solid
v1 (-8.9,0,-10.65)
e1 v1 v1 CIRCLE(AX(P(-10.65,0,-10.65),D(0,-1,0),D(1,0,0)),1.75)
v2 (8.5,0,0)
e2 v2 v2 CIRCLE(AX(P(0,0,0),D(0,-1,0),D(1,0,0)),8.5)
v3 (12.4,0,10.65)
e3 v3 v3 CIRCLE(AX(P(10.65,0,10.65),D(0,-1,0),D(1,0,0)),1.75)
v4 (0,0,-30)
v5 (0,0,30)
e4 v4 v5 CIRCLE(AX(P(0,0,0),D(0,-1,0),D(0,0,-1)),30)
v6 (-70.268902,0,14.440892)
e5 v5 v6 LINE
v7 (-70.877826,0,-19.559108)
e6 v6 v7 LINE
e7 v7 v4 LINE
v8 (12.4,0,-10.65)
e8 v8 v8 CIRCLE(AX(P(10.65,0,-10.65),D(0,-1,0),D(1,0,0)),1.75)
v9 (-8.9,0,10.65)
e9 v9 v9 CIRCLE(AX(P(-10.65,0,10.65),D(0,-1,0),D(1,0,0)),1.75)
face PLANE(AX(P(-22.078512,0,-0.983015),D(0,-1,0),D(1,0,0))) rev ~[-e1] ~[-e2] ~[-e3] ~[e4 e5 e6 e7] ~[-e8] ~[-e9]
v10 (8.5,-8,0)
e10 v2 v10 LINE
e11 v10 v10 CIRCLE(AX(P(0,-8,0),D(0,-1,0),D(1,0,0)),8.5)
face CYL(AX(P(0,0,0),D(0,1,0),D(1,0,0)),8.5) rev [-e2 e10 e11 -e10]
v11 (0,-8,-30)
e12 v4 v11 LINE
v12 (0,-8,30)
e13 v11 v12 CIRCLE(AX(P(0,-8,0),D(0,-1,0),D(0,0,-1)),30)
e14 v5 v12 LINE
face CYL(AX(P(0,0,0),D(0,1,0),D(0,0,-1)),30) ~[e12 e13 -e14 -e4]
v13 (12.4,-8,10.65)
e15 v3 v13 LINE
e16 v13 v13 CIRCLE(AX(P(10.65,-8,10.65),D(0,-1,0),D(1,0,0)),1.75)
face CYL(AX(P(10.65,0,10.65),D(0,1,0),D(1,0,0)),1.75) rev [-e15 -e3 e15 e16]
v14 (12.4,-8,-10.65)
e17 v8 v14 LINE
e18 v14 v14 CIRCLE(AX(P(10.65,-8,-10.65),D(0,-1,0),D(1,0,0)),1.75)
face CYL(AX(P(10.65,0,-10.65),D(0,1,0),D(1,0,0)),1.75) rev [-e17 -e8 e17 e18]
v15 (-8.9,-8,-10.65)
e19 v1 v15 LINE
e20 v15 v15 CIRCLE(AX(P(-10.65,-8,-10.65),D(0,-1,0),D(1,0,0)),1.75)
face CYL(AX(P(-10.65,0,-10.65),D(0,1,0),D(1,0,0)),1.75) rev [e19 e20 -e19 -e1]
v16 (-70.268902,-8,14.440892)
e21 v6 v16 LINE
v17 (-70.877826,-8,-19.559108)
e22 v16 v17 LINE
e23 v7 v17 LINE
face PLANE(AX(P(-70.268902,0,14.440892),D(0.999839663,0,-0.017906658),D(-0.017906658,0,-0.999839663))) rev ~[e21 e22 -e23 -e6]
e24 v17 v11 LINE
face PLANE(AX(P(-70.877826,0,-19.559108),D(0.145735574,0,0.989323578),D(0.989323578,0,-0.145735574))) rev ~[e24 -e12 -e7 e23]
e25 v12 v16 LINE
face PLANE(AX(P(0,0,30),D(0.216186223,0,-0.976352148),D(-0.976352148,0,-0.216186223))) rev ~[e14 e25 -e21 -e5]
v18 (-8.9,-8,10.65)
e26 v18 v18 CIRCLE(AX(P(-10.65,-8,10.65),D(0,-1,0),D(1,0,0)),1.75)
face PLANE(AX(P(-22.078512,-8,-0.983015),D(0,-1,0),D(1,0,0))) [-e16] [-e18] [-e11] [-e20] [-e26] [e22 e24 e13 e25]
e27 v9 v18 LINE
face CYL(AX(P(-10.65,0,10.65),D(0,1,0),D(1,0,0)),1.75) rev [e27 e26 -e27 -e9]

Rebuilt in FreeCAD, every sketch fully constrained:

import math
import FreeCAD as App
import Part
import Sketcher
from FreeCAD import Vector

doc = App.newDocument("Part")
body = doc.addObject("PartDesign::Body", "Body")

# Sketch on XZ plane
sketch1 = doc.addObject("Sketcher::SketchObject", "Sketch")
body.addObject(sketch1)
sketch1.AttachmentSupport = (doc.XZ_Plane, [""])
sketch1.MapMode = "FlatFace"
sketch1.addGeometry([
    Part.LineSegment(Vector(-70.877826, -19.559108, 0), Vector(0, -30, 0)),  # 0
    Part.ArcOfCircle(Part.Circle(Vector(0, 0, 0), Vector(0, 0, 1), 30), math.radians(-90), math.radians(90)),  # 1
    Part.LineSegment(Vector(0, 30, 0), Vector(-70.268902, 14.440892, 0)),  # 2
    Part.LineSegment(Vector(-70.268902, 14.440892, 0), Vector(-70.877826, -19.559108, 0)),  # 3
    Part.Circle(Vector(-10.65, -10.65, 0), Vector(0, 0, 1), 1.75),  # 4
    Part.Circle(Vector(10.65, -10.65, 0), Vector(0, 0, 1), 1.75),  # 5
    Part.Circle(Vector(-10.65, 10.65, 0), Vector(0, 0, 1), 1.75),  # 6
    Part.Circle(Vector(0, 0, 0), Vector(0, 0, 1), 8.5),  # 7
    Part.Circle(Vector(10.65, 10.65, 0), Vector(0, 0, 1), 1.75),  # 8
], False)
sketch1.addConstraint([
    Sketcher.Constraint("Coincident", 0, 2, 1, 1),
    Sketcher.Constraint("Coincident", 1, 2, 2, 1),
    Sketcher.Constraint("Coincident", 2, 2, 3, 1),
    Sketcher.Constraint("Coincident", 3, 2, 0, 1),
    Sketcher.Constraint("Coincident", 1, 3, -1, 1),
    Sketcher.Constraint("Coincident", 7, 3, -1, 1),
    Sketcher.Constraint("Equal", 4, 5),
    Sketcher.Constraint("Equal", 5, 6),
    Sketcher.Constraint("Equal", 6, 8),
    Sketcher.Constraint("Symmetric", 5, 3, 6, 3, -1, 1),
    Sketcher.Constraint("Symmetric", 4, 3, 8, 3, -1, 1),
    Sketcher.Constraint("Symmetric", 4, 3, 5, 3, -2),
    Sketcher.Constraint("PointOnObject", 0, 2, -2),
    Sketcher.Constraint("PointOnObject", 1, 2, -2),
    Sketcher.Constraint("Diameter", 7, 17.0),
    Sketcher.Constraint("Radius", 1, 30.0),
    Sketcher.Constraint("Diameter", 4, 3.5),
    Sketcher.Constraint("DistanceY", 3, 2, 2, 2, 34.0),
    Sketcher.Constraint("DistanceX", 4, 3, 5, 3, 21.3),
    Sketcher.Constraint("DistanceY", 4, 3, 6, 3, 21.3),
    Sketcher.Constraint("DistanceX", 2, 2, -1, 1, 70.268902),
    Sketcher.Constraint("Distance", 2, 71.970858),
    Sketcher.Constraint("Distance", 0, 71.642714),
])
pad1 = doc.addObject("PartDesign::Pad", "Pad")
body.addObject(pad1)
pad1.Profile = sketch1
pad1.Length = 8

doc.recompute()
